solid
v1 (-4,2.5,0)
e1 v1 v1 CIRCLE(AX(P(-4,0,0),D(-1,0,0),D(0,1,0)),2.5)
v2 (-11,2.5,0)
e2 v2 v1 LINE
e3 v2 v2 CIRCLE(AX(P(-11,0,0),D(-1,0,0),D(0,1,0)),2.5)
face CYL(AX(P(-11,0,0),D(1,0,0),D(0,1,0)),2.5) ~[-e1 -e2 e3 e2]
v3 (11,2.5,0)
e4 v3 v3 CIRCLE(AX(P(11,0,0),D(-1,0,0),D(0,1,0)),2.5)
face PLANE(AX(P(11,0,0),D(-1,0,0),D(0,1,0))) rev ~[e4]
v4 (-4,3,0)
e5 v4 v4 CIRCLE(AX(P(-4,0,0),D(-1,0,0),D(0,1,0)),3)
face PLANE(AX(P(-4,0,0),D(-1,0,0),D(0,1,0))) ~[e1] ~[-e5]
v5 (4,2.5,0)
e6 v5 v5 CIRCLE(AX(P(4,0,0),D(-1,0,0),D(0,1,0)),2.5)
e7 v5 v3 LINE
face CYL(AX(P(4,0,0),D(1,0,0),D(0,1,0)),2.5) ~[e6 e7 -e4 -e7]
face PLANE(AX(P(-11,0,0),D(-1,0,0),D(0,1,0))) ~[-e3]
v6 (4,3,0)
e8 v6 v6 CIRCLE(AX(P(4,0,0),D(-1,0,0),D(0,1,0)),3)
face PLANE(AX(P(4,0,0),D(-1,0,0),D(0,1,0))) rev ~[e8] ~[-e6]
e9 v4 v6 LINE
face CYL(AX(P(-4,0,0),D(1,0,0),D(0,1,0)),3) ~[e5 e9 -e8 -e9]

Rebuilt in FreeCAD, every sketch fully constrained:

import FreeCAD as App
import Part
import Sketcher
from FreeCAD import Vector

doc = App.newDocument("Part")
body = doc.addObject("PartDesign::Body", "Body")

# Sketch on XY plane
sketch1 = body.newObject("Sketcher::SketchObject", "Sketch")
sketch1.AttachmentSupport = (doc.getObject("XY_Plane"), [""])
sketch1.MapMode = "FlatFace"
sketch1.addGeometry(Part.LineSegment(Vector(-11, 2.5, 0), Vector(-11, 0, 0)), False)
sketch1.addGeometry(Part.LineSegment(Vector(-11, 0, 0), Vector(11, 0, 0)), False)
sketch1.addGeometry(Part.LineSegment(Vector(11, 0, 0), Vector(11, 2.5, 0)), False)
sketch1.addGeometry(Part.LineSegment(Vector(11, 2.5, 0), Vector(4, 2.5, 0)), False)
sketch1.addGeometry(Part.LineSegment(Vector(4, 2.5, 0), Vector(4, 3, 0)), False)
sketch1.addGeometry(Part.LineSegment(Vector(4, 3, 0), Vector(-4, 3, 0)), False)
sketch1.addGeometry(Part.LineSegment(Vector(-4, 3, 0), Vector(-4, 2.5, 0)), False)
sketch1.addGeometry(Part.LineSegment(Vector(-4, 2.5, 0), Vector(-11, 2.5, 0)), False)
sketch1.addConstraint(Sketcher.Constraint("Coincident", 0, 2, 1, 1))
sketch1.addConstraint(Sketcher.Constraint("Coincident", 1, 2, 2, 1))
sketch1.addConstraint(Sketcher.Constraint("Coincident", 2, 2, 3, 1))
sketch1.addConstraint(Sketcher.Constraint("Coincident", 3, 2, 4, 1))
sketch1.addConstraint(Sketcher.Constraint("Coincident", 4, 2, 5, 1))
sketch1.addConstraint(Sketcher.Constraint("Coincident", 5, 2, 6, 1))
sketch1.addConstraint(Sketcher.Constraint("Coincident", 6, 2, 7, 1))
sketch1.addConstraint(Sketcher.Constraint("Coincident", 7, 2, 0, 1))
sketch1.addConstraint(Sketcher.Constraint("Vertical", 0))
sketch1.addConstraint(Sketcher.Constraint("Horizontal", 1))
sketch1.addConstraint(Sketcher.Constraint("Vertical", 2))
sketch1.addConstraint(Sketcher.Constraint("Horizontal", 3))
sketch1.addConstraint(Sketcher.Constraint("Vertical", 4))
sketch1.addConstraint(Sketcher.Constraint("Horizontal", 5))
sketch1.addConstraint(Sketcher.Constraint("Vertical", 6))
sketch1.addConstraint(Sketcher.Constraint("Horizontal", 7))
sketch1.addConstraint(Sketcher.Constraint("Symmetric", 0, 2, 1, 2, -1, 1))
sketch1.addConstraint(Sketcher.Constraint("Symmetric", 3, 2, 6, 2, -2))
sketch1.addConstraint(Sketcher.Constraint("DistanceX", 3, 2, 3, 1, 7.0))
sketch1.addConstraint(Sketcher.Constraint("DistanceX", 5, 2, 5, 1, 8.0))
sketch1.addConstraint(Sketcher.Constraint("DistanceY", 0, 2, 0, 1, 2.5))
sketch1.addConstraint(Sketcher.Constraint("DistanceY", 4, 1, 4, 2, 0.5))
revolution = body.newObject("PartDesign::Revolution", "Revolution")
revolution.Profile = sketch1
revolution.ReferenceAxis = (sketch1, ["H_Axis"])
revolution.Angle = 360

doc.recompute()
